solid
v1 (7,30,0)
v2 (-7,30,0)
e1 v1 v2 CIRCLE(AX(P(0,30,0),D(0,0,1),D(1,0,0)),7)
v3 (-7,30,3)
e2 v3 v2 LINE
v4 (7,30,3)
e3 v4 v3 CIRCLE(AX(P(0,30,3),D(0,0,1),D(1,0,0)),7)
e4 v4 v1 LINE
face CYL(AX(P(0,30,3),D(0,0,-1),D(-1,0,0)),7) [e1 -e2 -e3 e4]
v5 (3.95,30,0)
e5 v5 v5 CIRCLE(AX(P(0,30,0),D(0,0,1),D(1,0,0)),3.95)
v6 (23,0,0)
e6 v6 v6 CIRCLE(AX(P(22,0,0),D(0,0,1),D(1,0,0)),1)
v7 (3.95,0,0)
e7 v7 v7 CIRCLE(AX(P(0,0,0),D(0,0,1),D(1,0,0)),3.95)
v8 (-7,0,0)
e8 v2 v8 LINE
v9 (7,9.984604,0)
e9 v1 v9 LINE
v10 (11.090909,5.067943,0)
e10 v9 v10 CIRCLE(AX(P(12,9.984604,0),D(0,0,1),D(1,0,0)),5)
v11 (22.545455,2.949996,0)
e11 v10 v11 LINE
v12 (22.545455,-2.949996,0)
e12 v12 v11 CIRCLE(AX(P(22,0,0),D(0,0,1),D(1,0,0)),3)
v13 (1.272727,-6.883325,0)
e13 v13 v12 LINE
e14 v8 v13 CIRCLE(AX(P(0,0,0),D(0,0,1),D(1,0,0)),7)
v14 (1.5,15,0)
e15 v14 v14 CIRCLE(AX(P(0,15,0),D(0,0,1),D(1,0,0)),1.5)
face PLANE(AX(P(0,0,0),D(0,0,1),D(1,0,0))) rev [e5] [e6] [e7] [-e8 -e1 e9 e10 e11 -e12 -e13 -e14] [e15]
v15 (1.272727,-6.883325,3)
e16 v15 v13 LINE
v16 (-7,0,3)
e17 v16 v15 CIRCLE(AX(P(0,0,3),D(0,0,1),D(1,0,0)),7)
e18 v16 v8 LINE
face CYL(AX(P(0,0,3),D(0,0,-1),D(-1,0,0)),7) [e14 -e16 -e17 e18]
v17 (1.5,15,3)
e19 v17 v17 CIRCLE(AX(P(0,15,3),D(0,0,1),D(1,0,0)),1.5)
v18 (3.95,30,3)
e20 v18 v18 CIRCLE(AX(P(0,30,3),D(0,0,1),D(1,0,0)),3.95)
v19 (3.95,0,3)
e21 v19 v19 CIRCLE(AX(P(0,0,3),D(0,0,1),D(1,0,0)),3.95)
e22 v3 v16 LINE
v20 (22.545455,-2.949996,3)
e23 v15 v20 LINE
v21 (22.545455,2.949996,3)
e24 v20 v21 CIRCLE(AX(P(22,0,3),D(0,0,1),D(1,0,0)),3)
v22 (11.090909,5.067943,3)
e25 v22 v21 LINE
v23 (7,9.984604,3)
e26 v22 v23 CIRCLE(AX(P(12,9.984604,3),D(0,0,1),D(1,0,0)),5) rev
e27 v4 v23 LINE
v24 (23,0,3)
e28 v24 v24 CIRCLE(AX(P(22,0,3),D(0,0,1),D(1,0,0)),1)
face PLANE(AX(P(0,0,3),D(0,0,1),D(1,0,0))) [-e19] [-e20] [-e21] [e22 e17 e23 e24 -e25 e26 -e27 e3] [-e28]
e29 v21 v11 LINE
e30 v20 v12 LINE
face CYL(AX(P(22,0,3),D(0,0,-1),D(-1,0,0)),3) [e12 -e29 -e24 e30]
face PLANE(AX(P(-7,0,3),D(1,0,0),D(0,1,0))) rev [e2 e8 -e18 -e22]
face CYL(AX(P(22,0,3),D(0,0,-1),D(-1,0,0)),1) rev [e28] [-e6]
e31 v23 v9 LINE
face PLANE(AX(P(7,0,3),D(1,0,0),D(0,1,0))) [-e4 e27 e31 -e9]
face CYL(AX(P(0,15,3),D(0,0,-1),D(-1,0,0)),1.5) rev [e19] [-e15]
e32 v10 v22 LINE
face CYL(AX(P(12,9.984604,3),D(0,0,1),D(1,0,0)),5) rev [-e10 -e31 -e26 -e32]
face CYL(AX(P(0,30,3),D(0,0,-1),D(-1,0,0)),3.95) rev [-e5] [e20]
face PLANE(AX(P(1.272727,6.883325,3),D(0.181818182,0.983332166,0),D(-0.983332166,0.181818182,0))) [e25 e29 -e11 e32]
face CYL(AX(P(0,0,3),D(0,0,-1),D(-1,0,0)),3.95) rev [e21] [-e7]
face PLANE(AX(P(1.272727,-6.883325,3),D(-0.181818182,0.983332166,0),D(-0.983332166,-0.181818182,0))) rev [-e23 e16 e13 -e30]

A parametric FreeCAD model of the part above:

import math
import FreeCAD as App
import Part
import Sketcher

V = App.Vector


def edges_at(feature, points):
    """Names of the edges that pass closest to the given points."""
    edges = feature.Shape.Edges
    near = lambda p: min(range(len(edges)), key=lambda i: edges[i].distToShape(Part.Vertex(*p))[0])
    return sorted({f"Edge{near(p) + 1}" for p in points})

doc = App.newDocument("Part")
body = doc.addObject("PartDesign::Body", "Body")

sketch1 = doc.addObject("Sketcher::SketchObject", "Sketch")
body.addObject(sketch1)
sketch1.AttachmentSupport = (doc.XY_Plane, [""])
sketch1.MapMode = "FlatFace"
sketch1.addGeometry([
    Part.LineSegment(V(7, 5.824352, 0), V(7, 30, 0)),
    Part.ArcOfCircle(Part.Circle(V(0, 30, 0), V(0, 0, 1), 7), math.radians(0), math.radians(180)),
    Part.LineSegment(V(-7, 30, 0), V(-7, 0, 0)),
    Part.ArcOfCircle(Part.Circle(V(0, 0, 0), V(0, 0, 1), 7), math.radians(180), math.radians(280.475682)),
    Part.LineSegment(V(1.272727, -6.883325, 0), V(22.545455, -2.949996, 0)),
    Part.ArcOfCircle(Part.Circle(V(22, 0, 0), V(0, 0, 1), 3), math.radians(-79.524318), math.radians(79.524318)),
    Part.LineSegment(V(22.545455, 2.949996, 0), V(7, 5.824352, 0)),
    Part.Circle(V(0, 0, 0), V(0, 0, 1), 3.95),
    Part.Circle(V(22, 0, 0), V(0, 0, 1), 1),
    Part.Circle(V(0, 15, 0), V(0, 0, 1), 1.5),
    Part.Circle(V(0, 30, 0), V(0, 0, 1), 3.95),
], False)
sketch1.addConstraint([
    Sketcher.Constraint("Tangent", 0, 2, 1, 1),
    Sketcher.Constraint("Tangent", 1, 2, 2, 1),
    Sketcher.Constraint("Tangent", 2, 2, 3, 1),
    Sketcher.Constraint("Tangent", 3, 2, 4, 1),
    Sketcher.Constraint("Tangent", 4, 2, 5, 1),
    Sketcher.Constraint("Tangent", 5, 2, 6, 1),
    Sketcher.Constraint("Coincident", 6, 2, 0, 1),
    Sketcher.Constraint("Vertical", 0),
    Sketcher.Constraint("Vertical", 2),
    Sketcher.Constraint("Coincident", 3, 3, -1, 1),
    Sketcher.Constraint("Coincident", 7, 3, -1, 1),
    Sketcher.Constraint("Coincident", 8, 3, 5, 3),
    Sketcher.Constraint("Coincident", 10, 3, 1, 3),
    Sketcher.Constraint("Equal", 1, 3),
    Sketcher.Constraint("Equal", 7, 10),
    Sketcher.Constraint("Symmetric", 4, 2, 5, 2, -1),
    Sketcher.Constraint("PointOnObject", 9, 3, -2),
    Sketcher.Constraint("Diameter", 8, 2.0),
    Sketcher.Constraint("Diameter", 9, 3.0),
    Sketcher.Constraint("Radius", 1, 7.0),
    Sketcher.Constraint("Radius", 5, 3.0),
    Sketcher.Constraint("Diameter", 7, 7.9),
    Sketcher.Constraint("DistanceY", 2, 2, 2, 1, 30.0),
    Sketcher.Constraint("DistanceX", -1, 1, 5, 3, 22.0),
    Sketcher.Constraint("DistanceY", -1, 1, 9, 3, 15.0),
])
pad1 = doc.addObject("PartDesign::Pad", "Pad")
body.addObject(pad1)
pad1.Profile = sketch1
pad1.Length = 3
doc.recompute()

fillet = doc.addObject("PartDesign::Fillet", "Fillet")
body.addObject(fillet)
fillet.Base = (pad1, edges_at(pad1, [(7, 5.824, 1.5)]))
fillet.Radius = 5

doc.recompute()
